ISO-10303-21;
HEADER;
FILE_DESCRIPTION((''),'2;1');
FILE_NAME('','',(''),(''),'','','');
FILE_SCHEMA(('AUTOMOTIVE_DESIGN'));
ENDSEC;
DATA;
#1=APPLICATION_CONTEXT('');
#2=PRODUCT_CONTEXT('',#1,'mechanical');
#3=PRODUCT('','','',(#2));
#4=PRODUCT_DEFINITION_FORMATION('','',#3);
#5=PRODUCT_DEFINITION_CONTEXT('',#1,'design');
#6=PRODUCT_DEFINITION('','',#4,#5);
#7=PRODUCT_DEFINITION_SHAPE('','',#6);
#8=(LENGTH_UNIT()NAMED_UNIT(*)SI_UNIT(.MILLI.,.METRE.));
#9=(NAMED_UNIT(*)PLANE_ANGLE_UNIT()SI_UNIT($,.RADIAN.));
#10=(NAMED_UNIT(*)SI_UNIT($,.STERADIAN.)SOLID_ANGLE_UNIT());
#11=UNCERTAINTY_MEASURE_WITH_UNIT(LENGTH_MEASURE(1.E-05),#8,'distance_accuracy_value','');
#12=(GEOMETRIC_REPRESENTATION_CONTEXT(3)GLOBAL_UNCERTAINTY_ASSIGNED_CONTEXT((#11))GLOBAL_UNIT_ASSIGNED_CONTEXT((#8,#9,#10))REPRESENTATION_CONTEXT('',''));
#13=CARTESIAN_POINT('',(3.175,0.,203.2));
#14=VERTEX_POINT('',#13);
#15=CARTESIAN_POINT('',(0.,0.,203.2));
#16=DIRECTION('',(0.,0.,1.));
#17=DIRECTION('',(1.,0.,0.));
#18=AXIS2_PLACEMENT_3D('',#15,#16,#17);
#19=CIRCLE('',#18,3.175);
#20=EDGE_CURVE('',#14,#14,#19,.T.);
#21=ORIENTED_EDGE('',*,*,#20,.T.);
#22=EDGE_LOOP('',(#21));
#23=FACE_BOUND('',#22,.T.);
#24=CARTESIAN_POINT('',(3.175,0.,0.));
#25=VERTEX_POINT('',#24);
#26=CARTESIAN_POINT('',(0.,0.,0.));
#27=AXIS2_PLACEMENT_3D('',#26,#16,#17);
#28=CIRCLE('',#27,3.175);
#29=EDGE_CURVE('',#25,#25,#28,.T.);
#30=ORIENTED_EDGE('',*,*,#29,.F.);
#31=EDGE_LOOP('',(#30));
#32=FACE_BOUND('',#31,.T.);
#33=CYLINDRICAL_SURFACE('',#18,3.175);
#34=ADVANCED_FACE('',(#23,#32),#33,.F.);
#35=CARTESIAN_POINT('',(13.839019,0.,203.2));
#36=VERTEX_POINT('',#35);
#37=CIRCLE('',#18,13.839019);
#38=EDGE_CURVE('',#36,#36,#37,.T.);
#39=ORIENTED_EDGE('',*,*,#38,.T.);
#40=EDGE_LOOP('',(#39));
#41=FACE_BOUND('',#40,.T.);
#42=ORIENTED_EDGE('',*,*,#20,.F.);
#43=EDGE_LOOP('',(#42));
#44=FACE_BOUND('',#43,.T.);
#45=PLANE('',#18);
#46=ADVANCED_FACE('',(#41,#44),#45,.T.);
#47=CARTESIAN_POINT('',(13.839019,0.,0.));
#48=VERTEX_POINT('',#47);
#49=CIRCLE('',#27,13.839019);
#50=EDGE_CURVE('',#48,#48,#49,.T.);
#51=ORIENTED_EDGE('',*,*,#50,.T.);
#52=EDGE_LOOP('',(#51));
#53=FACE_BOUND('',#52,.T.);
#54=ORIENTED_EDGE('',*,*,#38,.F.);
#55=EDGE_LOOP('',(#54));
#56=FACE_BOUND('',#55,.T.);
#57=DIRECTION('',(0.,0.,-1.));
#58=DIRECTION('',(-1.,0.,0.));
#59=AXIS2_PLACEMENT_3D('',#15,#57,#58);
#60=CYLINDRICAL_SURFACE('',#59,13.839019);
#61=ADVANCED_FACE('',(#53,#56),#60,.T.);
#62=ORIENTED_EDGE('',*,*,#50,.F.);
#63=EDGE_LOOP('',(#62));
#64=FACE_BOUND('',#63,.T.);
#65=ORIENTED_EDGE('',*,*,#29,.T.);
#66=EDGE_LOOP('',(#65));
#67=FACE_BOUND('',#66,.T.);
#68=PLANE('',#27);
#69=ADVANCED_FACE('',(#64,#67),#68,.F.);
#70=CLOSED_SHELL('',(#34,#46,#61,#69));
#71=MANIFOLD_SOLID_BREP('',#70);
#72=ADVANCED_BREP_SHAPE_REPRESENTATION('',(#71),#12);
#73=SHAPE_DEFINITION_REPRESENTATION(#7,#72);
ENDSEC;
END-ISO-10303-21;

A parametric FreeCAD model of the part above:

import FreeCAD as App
import Part
import Sketcher
Q = App.Units.Quantity

doc = App.newDocument("Part")
body = doc.addObject("PartDesign::Body", "Body")

# Sketch on XY plane
sketch1 = body.newObject("Sketcher::SketchObject", "Sketch")
sketch1.AttachmentSupport = (doc.getObject("XY_Plane"), [""])
sketch1.MapMode = "FlatFace"
sketch1.addGeometry(Part.Circle(App.Vector(0, 0, 0), App.Vector(0, 0, 1), 14), False)
sketch1.addConstraint([
    Sketcher.Constraint("Coincident", 0, 3, -1, 1),
    Sketcher.Constraint("Diameter", 0, Q("27.678037 mm")),
])
pad1 = body.newObject("PartDesign::Pad", "Pad")
pad1.Profile = sketch1
pad1.Length = Q("8 in")

# Sketch on XY plane
sketch2 = body.newObject("Sketcher::SketchObject", "Sketch001")
sketch2.AttachmentSupport = (doc.getObject("XY_Plane"), [""])
sketch2.MapMode = "FlatFace"
sketch2.AttachmentOffset = App.Placement(App.Vector(0, 0, 8 * 25.4), App.Rotation())
sketch2.addGeometry(Part.Circle(App.Vector(0, 0, 0), App.Vector(0, 0, 1), 3.2), False)
sketch2.addConstraint([
    Sketcher.Constraint("Coincident", 0, 3, -1, 1),
    Sketcher.Constraint("Diameter", 0, Q("0.25 in")),
])
doc.recompute()
hole = body.newObject("PartDesign::Hole", "Hole")
hole.Profile = sketch2
hole.ThreadType = "None"
hole.Diameter = Q("0.25 in")
hole.DepthType = "ThroughAll"

doc.recompute()
